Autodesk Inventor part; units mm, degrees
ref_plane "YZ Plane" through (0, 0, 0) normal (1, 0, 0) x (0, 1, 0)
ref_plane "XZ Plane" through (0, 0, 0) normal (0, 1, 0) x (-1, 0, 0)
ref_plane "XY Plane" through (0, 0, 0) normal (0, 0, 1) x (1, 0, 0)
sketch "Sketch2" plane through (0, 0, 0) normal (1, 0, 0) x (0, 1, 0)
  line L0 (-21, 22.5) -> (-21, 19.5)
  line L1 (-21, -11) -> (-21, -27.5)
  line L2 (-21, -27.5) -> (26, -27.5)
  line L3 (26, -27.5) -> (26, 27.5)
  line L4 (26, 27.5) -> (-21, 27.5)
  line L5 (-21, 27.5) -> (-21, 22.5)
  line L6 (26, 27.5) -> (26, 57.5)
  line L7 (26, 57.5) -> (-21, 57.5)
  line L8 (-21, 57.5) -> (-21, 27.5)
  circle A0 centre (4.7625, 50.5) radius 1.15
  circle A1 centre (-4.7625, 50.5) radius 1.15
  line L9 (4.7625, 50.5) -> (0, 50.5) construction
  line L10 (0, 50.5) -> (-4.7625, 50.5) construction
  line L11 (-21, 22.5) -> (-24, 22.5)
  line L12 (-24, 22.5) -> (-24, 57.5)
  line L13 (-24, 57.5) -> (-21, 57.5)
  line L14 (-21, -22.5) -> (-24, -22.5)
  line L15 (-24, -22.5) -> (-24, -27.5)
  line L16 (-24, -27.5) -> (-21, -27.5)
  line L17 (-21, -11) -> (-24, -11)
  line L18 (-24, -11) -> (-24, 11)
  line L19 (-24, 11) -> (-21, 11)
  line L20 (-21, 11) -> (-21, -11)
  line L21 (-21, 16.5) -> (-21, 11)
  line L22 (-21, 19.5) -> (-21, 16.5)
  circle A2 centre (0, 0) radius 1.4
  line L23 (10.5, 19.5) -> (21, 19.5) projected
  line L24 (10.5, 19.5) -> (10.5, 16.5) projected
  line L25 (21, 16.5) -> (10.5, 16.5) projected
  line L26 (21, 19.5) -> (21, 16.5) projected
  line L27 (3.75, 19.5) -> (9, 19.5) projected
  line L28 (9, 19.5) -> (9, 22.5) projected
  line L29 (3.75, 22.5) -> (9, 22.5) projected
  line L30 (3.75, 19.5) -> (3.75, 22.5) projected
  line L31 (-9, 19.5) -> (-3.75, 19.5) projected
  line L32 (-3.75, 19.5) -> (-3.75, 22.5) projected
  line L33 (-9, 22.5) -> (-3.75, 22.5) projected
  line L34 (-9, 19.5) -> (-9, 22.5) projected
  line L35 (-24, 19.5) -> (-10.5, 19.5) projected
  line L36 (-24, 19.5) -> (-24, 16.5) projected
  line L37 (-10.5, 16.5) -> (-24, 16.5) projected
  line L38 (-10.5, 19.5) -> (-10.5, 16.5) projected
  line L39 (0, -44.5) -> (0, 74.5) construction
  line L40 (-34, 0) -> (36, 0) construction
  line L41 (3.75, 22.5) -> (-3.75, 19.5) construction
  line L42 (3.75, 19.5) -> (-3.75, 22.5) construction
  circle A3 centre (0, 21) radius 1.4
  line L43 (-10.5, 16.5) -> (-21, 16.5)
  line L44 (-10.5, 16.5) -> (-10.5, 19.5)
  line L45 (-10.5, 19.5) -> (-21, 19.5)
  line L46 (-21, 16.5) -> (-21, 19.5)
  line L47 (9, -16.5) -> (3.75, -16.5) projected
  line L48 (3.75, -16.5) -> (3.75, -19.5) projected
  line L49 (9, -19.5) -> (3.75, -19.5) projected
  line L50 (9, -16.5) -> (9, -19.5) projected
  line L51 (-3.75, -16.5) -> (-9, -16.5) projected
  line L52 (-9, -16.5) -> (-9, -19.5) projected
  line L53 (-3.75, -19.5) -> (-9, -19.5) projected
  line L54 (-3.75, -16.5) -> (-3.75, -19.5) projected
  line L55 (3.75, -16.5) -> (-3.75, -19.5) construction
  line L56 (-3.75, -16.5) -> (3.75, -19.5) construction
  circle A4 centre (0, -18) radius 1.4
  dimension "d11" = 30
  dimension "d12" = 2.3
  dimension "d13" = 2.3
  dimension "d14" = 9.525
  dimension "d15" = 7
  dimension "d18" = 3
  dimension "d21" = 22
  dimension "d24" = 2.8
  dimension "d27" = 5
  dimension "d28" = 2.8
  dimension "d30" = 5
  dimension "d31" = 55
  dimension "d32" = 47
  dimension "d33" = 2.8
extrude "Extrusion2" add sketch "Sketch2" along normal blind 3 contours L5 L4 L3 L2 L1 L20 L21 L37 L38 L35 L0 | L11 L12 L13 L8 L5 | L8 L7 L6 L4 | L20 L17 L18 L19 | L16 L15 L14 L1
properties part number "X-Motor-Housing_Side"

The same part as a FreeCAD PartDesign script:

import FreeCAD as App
import Part
import Sketcher
Q = App.Units.Quantity

doc = App.newDocument("Part")
params = doc.addObject("Spreadsheet::Sheet", "Params")
for row, (alias, value) in enumerate([
    ("sketch1_diameter", "2.8 mm"),
    ("sketch1_diameter2", "2.3 mm"),
    ("sketch1_width", "3 mm"),
    ("sketch1_height", "22 mm"),
    ("sketch1_height2", "5 mm"),
    ("pad1_length", "3 mm"),
], start=1):
    params.set(f"A{row}", alias)
    params.set(f"B{row}", "=" + value)
    params.setAlias(f"B{row}", alias)

body = doc.addObject("PartDesign::Body", "Body")

# Sketch on YZ plane
sketch1 = body.newObject("Sketcher::SketchObject", "Sketch")
sketch1.AttachmentSupport = (doc.getObject("YZ_Plane"), [""])
sketch1.MapMode = "FlatFace"
sketch1.addGeometry(Part.LineSegment(App.Vector(26, -27.5, 0), App.Vector(26, 57.5, 0)), False)
sketch1.addGeometry(Part.LineSegment(App.Vector(26, 57.5, 0), App.Vector(-24, 57.5, 0)), False)
sketch1.addGeometry(Part.LineSegment(App.Vector(-24, 57.5, 0), App.Vector(-24, 22.5, 0)), False)
sketch1.addGeometry(Part.LineSegment(App.Vector(-24, 22.5, 0), App.Vector(-21, 22.5, 0)), False)
sketch1.addGeometry(Part.LineSegment(App.Vector(-21, 22.5, 0), App.Vector(-21, 19.5, 0)), False)
sketch1.addGeometry(Part.LineSegment(App.Vector(-21, 19.5, 0), App.Vector(-10.5, 19.5, 0)), False)
sketch1.addGeometry(Part.LineSegment(App.Vector(-10.5, 19.5, 0), App.Vector(-10.5, 16.5, 0)), False)
sketch1.addGeometry(Part.LineSegment(App.Vector(-10.5, 16.5, 0), App.Vector(-21, 16.5, 0)), False)
sketch1.addGeometry(Part.LineSegment(App.Vector(-21, 16.5, 0), App.Vector(-21, 11, 0)), False)
sketch1.addGeometry(Part.LineSegment(App.Vector(-21, 11, 0), App.Vector(-24, 11, 0)), False)
sketch1.addGeometry(Part.LineSegment(App.Vector(-24, 11, 0), App.Vector(-24, -11, 0)), False)
sketch1.addGeometry(Part.LineSegment(App.Vector(-24, -11, 0), App.Vector(-21, -11, 0)), False)
sketch1.addGeometry(Part.LineSegment(App.Vector(-21, -11, 0), App.Vector(-21, -22.5, 0)), False)
sketch1.addGeometry(Part.LineSegment(App.Vector(-21, -22.5, 0), App.Vector(-24, -22.5, 0)), False)
sketch1.addGeometry(Part.LineSegment(App.Vector(-24, -22.5, 0), App.Vector(-24, -27.5, 0)), False)
sketch1.addGeometry(Part.LineSegment(App.Vector(-24, -27.5, 0), App.Vector(26, -27.5, 0)), False)
sketch1.addGeometry(Part.LineSegment(App.Vector(-9, -16.5, 0), App.Vector(-3.75, -16.5, 0)), False)
sketch1.addGeometry(Part.LineSegment(App.Vector(-3.75, -16.5, 0), App.Vector(-3.75, -19.5, 0)), False)
sketch1.addGeometry(Part.LineSegment(App.Vector(-3.75, -19.5, 0), App.Vector(-9, -19.5, 0)), False)
sketch1.addGeometry(Part.LineSegment(App.Vector(-9, -19.5, 0), App.Vector(-9, -16.5, 0)), False)
sketch1.addGeometry(Part.Circle(App.Vector(0, -18, 0), App.Vector(0, 0, 1), 1.4), False)
sketch1.addGeometry(Part.Circle(App.Vector(0, 0, 0), App.Vector(0, 0, 1), 1.4), False)
sketch1.addGeometry(Part.LineSegment(App.Vector(3.75, -16.5, 0), App.Vector(9, -16.5, 0)), False)
sketch1.addGeometry(Part.LineSegment(App.Vector(9, -16.5, 0), App.Vector(9, -19.5, 0)), False)
sketch1.addGeometry(Part.LineSegment(App.Vector(9, -19.5, 0), App.Vector(3.75, -19.5, 0)), False)
sketch1.addGeometry(Part.LineSegment(App.Vector(3.75, -19.5, 0), App.Vector(3.75, -16.5, 0)), False)
sketch1.addGeometry(Part.LineSegment(App.Vector(-3.75, 19.5, 0), App.Vector(-9, 19.5, 0)), False)
sketch1.addGeometry(Part.LineSegment(App.Vector(-9, 19.5, 0), App.Vector(-9, 22.5, 0)), False)
sketch1.addGeometry(Part.LineSegment(App.Vector(-9, 22.5, 0), App.Vector(-3.75, 22.5, 0)), False)
sketch1.addGeometry(Part.LineSegment(App.Vector(-3.75, 22.5, 0), App.Vector(-3.75, 19.5, 0)), False)
sketch1.addGeometry(Part.Circle(App.Vector(0, 21, 0), App.Vector(0, 0, 1), 1.4), False)
sketch1.addGeometry(Part.LineSegment(App.Vector(9, 19.5, 0), App.Vector(3.75, 19.5, 0)), False)
sketch1.addGeometry(Part.LineSegment(App.Vector(3.75, 19.5, 0), App.Vector(3.75, 22.5, 0)), False)
sketch1.addGeometry(Part.LineSegment(App.Vector(3.75, 22.5, 0), App.Vector(9, 22.5, 0)), False)
sketch1.addGeometry(Part.LineSegment(App.Vector(9, 22.5, 0), App.Vector(9, 19.5, 0)), False)
sketch1.addGeometry(Part.LineSegment(App.Vector(10.5, 16.5, 0), App.Vector(10.5, 19.5, 0)), False)
sketch1.addGeometry(Part.LineSegment(App.Vector(10.5, 19.5, 0), App.Vector(21, 19.5, 0)), False)
sketch1.addGeometry(Part.LineSegment(App.Vector(21, 19.5, 0), App.Vector(21, 16.5, 0)), False)
sketch1.addGeometry(Part.LineSegment(App.Vector(21, 16.5, 0), App.Vector(10.5, 16.5, 0)), False)
sketch1.addGeometry(Part.Circle(App.Vector(-4.7625, 50.5, 0), App.Vector(0, 0, 1), 1.15), False)
sketch1.addGeometry(Part.Circle(App.Vector(4.7625, 50.5, 0), App.Vector(0, 0, 1), 1.15), False)
sketch1.addConstraint(Sketcher.Constraint("Coincident", 0, 2, 1, 1))
sketch1.addConstraint(Sketcher.Constraint("Coincident", 1, 2, 2, 1))
sketch1.addConstraint(Sketcher.Constraint("Coincident", 2, 2, 3, 1))
sketch1.addConstraint(Sketcher.Constraint("Coincident", 3, 2, 4, 1))
sketch1.addConstraint(Sketcher.Constraint("Coincident", 4, 2, 5, 1))
sketch1.addConstraint(Sketcher.Constraint("Coincident", 5, 2, 6, 1))
sketch1.addConstraint(Sketcher.Constraint("Coincident", 6, 2, 7, 1))
sketch1.addConstraint(Sketcher.Constraint("Coincident", 7, 2, 8, 1))
sketch1.addConstraint(Sketcher.Constraint("Coincident", 8, 2, 9, 1))
sketch1.addConstraint(Sketcher.Constraint("Coincident", 9, 2, 10, 1))
sketch1.addConstraint(Sketcher.Constraint("Coincident", 10, 2, 11, 1))
sketch1.addConstraint(Sketcher.Constraint("Coincident", 11, 2, 12, 1))
sketch1.addConstraint(Sketcher.Constraint("Coincident", 12, 2, 13, 1))
sketch1.addConstraint(Sketcher.Constraint("Coincident", 13, 2, 14, 1))
sketch1.addConstraint(Sketcher.Constraint("Coincident", 14, 2, 15, 1))
sketch1.addConstraint(Sketcher.Constraint("Coincident", 15, 2, 0, 1))
sketch1.addConstraint(Sketcher.Constraint("Coincident", 16, 2, 17, 1))
sketch1.addConstraint(Sketcher.Constraint("Coincident", 17, 2, 18, 1))
sketch1.addConstraint(Sketcher.Constraint("Coincident", 18, 2, 19, 1))
sketch1.addConstraint(Sketcher.Constraint("Coincident", 19, 2, 16, 1))
sketch1.addConstraint(Sketcher.Constraint("Coincident", 22, 2, 23, 1))
sketch1.addConstraint(Sketcher.Constraint("Coincident", 23, 2, 24, 1))
sketch1.addConstraint(Sketcher.Constraint("Coincident", 24, 2, 25, 1))
sketch1.addConstraint(Sketcher.Constraint("Coincident", 25, 2, 22, 1))
sketch1.addConstraint(Sketcher.Constraint("Coincident", 26, 2, 27, 1))
sketch1.addConstraint(Sketcher.Constraint("Coincident", 27, 2, 28, 1))
sketch1.addConstraint(Sketcher.Constraint("Coincident", 28, 2, 29, 1))
sketch1.addConstraint(Sketcher.Constraint("Coincident", 29, 2, 26, 1))
sketch1.addConstraint(Sketcher.Constraint("Coincident", 31, 2, 32, 1))
sketch1.addConstraint(Sketcher.Constraint("Coincident", 32, 2, 33, 1))
sketch1.addConstraint(Sketcher.Constraint("Coincident", 33, 2, 34, 1))
sketch1.addConstraint(Sketcher.Constraint("Coincident", 34, 2, 31, 1))
sketch1.addConstraint(Sketcher.Constraint("Coincident", 35, 2, 36, 1))
sketch1.addConstraint(Sketcher.Constraint("Coincident", 36, 2, 37, 1))
sketch1.addConstraint(Sketcher.Constraint("Coincident", 37, 2, 38, 1))
sketch1.addConstraint(Sketcher.Constraint("Coincident", 38, 2, 35, 1))
sketch1.addConstraint(Sketcher.Constraint("Vertical", 0))
sketch1.addConstraint(Sketcher.Constraint("Horizontal", 1))
sketch1.addConstraint(Sketcher.Constraint("Vertical", 2))
sketch1.addConstraint(Sketcher.Constraint("Horizontal", 3))
sketch1.addConstraint(Sketcher.Constraint("Vertical", 4))
sketch1.addConstraint(Sketcher.Constraint("Horizontal", 5))
sketch1.addConstraint(Sketcher.Constraint("Vertical", 6))
sketch1.addConstraint(Sketcher.Constraint("Horizontal", 7))
sketch1.addConstraint(Sketcher.Constraint("Vertical", 8))
sketch1.addConstraint(Sketcher.Constraint("Horizontal", 9))
sketch1.addConstraint(Sketcher.Constraint("Vertical", 10))
sketch1.addConstraint(Sketcher.Constraint("Horizontal", 11))
sketch1.addConstraint(Sketcher.Constraint("Vertical", 12))
sketch1.addConstraint(Sketcher.Constraint("Horizontal", 13))
sketch1.addConstraint(Sketcher.Constraint("Vertical", 14))
sketch1.addConstraint(Sketcher.Constraint("Horizontal", 15))
sketch1.addConstraint(Sketcher.Constraint("Horizontal", 16))
sketch1.addConstraint(Sketcher.Constraint("Vertical", 17))
sketch1.addConstraint(Sketcher.Constraint("Horizontal", 18))
sketch1.addConstraint(Sketcher.Constraint("Vertical", 19))
sketch1.addConstraint(Sketcher.Constraint("Horizontal", 22))
sketch1.addConstraint(Sketcher.Constraint("Vertical", 23))
sketch1.addConstraint(Sketcher.Constraint("Horizontal", 24))
sketch1.addConstraint(Sketcher.Constraint("Vertical", 25))
sketch1.addConstraint(Sketcher.Constraint("Horizontal", 26))
sketch1.addConstraint(Sketcher.Constraint("Vertical", 27))
sketch1.addConstraint(Sketcher.Constraint("Horizontal", 28))
sketch1.addConstraint(Sketcher.Constraint("Vertical", 29))
sketch1.addConstraint(Sketcher.Constraint("Horizontal", 31))
sketch1.addConstraint(Sketcher.Constraint("Vertical", 32))
sketch1.addConstraint(Sketcher.Constraint("Horizontal", 33))
sketch1.addConstraint(Sketcher.Constraint("Vertical", 34))
sketch1.addConstraint(Sketcher.Constraint("Vertical", 35))
sketch1.addConstraint(Sketcher.Constraint("Horizontal", 36))
sketch1.addConstraint(Sketcher.Constraint("Vertical", 37))
sketch1.addConstraint(Sketcher.Constraint("Horizontal", 38))
sketch1.addConstraint(Sketcher.Constraint("Coincident", 21, 3, -1, 1))
sketch1.addConstraint(Sketcher.Constraint("Equal", 20, 21))
sketch1.addConstraint(Sketcher.Constraint("Equal", 21, 30))
sketch1.addConstraint(Sketcher.Constraint("Equal", 39, 40))
sketch1.addConstraint(Sketcher.Constraint("Symmetric", 23, 2, 26, 2, -1, 1))
sketch1.addConstraint(Sketcher.Constraint("Symmetric", 17, 2, 31, 2, -1, 1))
sketch1.addConstraint(Sketcher.Constraint("Symmetric", 39, 3, 40, 3, -2))
sketch1.addConstraint(Sketcher.Constraint("Symmetric", 19, 2, 22, 2, -2))
sketch1.addConstraint(Sketcher.Constraint("Symmetric", 17, 2, 24, 2, -2))
sketch1.addConstraint(Sketcher.Constraint("Symmetric", 28, 2, 32, 2, -2))
sketch1.addConstraint(Sketcher.Constraint("Symmetric", 5, 2, 35, 2, -2))
sketch1.addConstraint(Sketcher.Constraint("Symmetric", 7, 2, 37, 2, -2))
sketch1.addConstraint(Sketcher.Constraint("Symmetric", 8, 2, 11, 2, -1))
sketch1.addConstraint(Sketcher.Constraint("Symmetric", 3, 2, 12, 2, -1))
sketch1.addConstraint(Sketcher.Constraint("PointOnObject", 20, 3, -2))
sketch1.addConstraint(Sketcher.Constraint("PointOnObject", 30, 3, -2))
sketch1.addConstraint(Sketcher.Constraint("Horizontal", 5, 2, 26, 2))
sketch1.addConstraint(Sketcher.Constraint("Horizontal", 3, 2, 27, 2))
sketch1.addConstraint(Sketcher.Constraint("Vertical", 2, 2, 9, 2))
sketch1.addConstraint(Sketcher.Constraint("Vertical", 10, 2, 13, 2))
sketch1.addConstraint(Sketcher.Constraint("Vertical", 23, 2, 33, 2))
sketch1.addConstraint(Sketcher.Constraint("Equal", 13, 4))
sketch1.addConstraint(Sketcher.Constraint("Equal", 4, 6))
sketch1.addConstraint(Sketcher.Constraint("Equal", 6, 17))
sketch1.addConstraint(Sketcher.Constraint("Diameter", 20, Q("2.8 mm")))
sketch1.addConstraint(Sketcher.Constraint("Diameter", 39, Q("2.3 mm")))
sketch1.addConstraint(Sketcher.Constraint("DistanceX", 3, 1, 3, 2, Q("3 mm")))
sketch1.addConstraint(Sketcher.Constraint("DistanceY", 10, 2, 10, 1, Q("22 mm")))
sketch1.addConstraint(Sketcher.Constraint("DistanceY", 14, 2, 14, 1, Q("5 mm")))
sketch1.addConstraint(Sketcher.Constraint("DistanceY", 40, 3, 0, 2, Q("7 mm")))
sketch1.addConstraint(Sketcher.Constraint("DistanceY", 20, 3, 10, 2, Q("7 mm")))
sketch1.addConstraint(Sketcher.Constraint("DistanceX", 12, 2, 15, 2, Q("47 mm")))
sketch1.addConstraint(Sketcher.Constraint("DistanceY", 0, 1, 0, 2, Q("85 mm")))
sketch1.addConstraint(Sketcher.Constraint("DistanceY", 2, 2, 2, 1, Q("35 mm")))
sketch1.addConstraint(Sketcher.Constraint("DistanceX", 5, 1, 5, 2, Q("10.5 mm")))
sketch1.addConstraint(Sketcher.Constraint("DistanceY", -1, 1, 30, 3, Q("21 mm")))
sketch1.addConstraint(Sketcher.Constraint("DistanceX", -1, 1, 0, 2, Q("26 mm")))
sketch1.addConstraint(Sketcher.Constraint("DistanceX", 18, 2, -1, 1, Q("9 mm")))
sketch1.addConstraint(Sketcher.Constraint("DistanceX", 39, 3, 40, 3, Q("9.525 mm")))
sketch1.addConstraint(Sketcher.Constraint("DistanceX", 16, 1, 16, 2, Q("5.25 mm")))
sketch1.setExpression("Constraints[96]", "Params.sketch1_diameter")
sketch1.setExpression("Constraints[97]", "Params.sketch1_diameter2")
sketch1.setExpression("Constraints[98]", "Params.sketch1_width")
sketch1.setExpression("Constraints[99]", "Params.sketch1_height")
sketch1.setExpression("Constraints[100]", "Params.sketch1_height2")
pad1 = body.newObject("PartDesign::Pad", "Pad")
pad1.Profile = sketch1
pad1.setExpression("Length", "Params.pad1_length")

doc.recompute()
